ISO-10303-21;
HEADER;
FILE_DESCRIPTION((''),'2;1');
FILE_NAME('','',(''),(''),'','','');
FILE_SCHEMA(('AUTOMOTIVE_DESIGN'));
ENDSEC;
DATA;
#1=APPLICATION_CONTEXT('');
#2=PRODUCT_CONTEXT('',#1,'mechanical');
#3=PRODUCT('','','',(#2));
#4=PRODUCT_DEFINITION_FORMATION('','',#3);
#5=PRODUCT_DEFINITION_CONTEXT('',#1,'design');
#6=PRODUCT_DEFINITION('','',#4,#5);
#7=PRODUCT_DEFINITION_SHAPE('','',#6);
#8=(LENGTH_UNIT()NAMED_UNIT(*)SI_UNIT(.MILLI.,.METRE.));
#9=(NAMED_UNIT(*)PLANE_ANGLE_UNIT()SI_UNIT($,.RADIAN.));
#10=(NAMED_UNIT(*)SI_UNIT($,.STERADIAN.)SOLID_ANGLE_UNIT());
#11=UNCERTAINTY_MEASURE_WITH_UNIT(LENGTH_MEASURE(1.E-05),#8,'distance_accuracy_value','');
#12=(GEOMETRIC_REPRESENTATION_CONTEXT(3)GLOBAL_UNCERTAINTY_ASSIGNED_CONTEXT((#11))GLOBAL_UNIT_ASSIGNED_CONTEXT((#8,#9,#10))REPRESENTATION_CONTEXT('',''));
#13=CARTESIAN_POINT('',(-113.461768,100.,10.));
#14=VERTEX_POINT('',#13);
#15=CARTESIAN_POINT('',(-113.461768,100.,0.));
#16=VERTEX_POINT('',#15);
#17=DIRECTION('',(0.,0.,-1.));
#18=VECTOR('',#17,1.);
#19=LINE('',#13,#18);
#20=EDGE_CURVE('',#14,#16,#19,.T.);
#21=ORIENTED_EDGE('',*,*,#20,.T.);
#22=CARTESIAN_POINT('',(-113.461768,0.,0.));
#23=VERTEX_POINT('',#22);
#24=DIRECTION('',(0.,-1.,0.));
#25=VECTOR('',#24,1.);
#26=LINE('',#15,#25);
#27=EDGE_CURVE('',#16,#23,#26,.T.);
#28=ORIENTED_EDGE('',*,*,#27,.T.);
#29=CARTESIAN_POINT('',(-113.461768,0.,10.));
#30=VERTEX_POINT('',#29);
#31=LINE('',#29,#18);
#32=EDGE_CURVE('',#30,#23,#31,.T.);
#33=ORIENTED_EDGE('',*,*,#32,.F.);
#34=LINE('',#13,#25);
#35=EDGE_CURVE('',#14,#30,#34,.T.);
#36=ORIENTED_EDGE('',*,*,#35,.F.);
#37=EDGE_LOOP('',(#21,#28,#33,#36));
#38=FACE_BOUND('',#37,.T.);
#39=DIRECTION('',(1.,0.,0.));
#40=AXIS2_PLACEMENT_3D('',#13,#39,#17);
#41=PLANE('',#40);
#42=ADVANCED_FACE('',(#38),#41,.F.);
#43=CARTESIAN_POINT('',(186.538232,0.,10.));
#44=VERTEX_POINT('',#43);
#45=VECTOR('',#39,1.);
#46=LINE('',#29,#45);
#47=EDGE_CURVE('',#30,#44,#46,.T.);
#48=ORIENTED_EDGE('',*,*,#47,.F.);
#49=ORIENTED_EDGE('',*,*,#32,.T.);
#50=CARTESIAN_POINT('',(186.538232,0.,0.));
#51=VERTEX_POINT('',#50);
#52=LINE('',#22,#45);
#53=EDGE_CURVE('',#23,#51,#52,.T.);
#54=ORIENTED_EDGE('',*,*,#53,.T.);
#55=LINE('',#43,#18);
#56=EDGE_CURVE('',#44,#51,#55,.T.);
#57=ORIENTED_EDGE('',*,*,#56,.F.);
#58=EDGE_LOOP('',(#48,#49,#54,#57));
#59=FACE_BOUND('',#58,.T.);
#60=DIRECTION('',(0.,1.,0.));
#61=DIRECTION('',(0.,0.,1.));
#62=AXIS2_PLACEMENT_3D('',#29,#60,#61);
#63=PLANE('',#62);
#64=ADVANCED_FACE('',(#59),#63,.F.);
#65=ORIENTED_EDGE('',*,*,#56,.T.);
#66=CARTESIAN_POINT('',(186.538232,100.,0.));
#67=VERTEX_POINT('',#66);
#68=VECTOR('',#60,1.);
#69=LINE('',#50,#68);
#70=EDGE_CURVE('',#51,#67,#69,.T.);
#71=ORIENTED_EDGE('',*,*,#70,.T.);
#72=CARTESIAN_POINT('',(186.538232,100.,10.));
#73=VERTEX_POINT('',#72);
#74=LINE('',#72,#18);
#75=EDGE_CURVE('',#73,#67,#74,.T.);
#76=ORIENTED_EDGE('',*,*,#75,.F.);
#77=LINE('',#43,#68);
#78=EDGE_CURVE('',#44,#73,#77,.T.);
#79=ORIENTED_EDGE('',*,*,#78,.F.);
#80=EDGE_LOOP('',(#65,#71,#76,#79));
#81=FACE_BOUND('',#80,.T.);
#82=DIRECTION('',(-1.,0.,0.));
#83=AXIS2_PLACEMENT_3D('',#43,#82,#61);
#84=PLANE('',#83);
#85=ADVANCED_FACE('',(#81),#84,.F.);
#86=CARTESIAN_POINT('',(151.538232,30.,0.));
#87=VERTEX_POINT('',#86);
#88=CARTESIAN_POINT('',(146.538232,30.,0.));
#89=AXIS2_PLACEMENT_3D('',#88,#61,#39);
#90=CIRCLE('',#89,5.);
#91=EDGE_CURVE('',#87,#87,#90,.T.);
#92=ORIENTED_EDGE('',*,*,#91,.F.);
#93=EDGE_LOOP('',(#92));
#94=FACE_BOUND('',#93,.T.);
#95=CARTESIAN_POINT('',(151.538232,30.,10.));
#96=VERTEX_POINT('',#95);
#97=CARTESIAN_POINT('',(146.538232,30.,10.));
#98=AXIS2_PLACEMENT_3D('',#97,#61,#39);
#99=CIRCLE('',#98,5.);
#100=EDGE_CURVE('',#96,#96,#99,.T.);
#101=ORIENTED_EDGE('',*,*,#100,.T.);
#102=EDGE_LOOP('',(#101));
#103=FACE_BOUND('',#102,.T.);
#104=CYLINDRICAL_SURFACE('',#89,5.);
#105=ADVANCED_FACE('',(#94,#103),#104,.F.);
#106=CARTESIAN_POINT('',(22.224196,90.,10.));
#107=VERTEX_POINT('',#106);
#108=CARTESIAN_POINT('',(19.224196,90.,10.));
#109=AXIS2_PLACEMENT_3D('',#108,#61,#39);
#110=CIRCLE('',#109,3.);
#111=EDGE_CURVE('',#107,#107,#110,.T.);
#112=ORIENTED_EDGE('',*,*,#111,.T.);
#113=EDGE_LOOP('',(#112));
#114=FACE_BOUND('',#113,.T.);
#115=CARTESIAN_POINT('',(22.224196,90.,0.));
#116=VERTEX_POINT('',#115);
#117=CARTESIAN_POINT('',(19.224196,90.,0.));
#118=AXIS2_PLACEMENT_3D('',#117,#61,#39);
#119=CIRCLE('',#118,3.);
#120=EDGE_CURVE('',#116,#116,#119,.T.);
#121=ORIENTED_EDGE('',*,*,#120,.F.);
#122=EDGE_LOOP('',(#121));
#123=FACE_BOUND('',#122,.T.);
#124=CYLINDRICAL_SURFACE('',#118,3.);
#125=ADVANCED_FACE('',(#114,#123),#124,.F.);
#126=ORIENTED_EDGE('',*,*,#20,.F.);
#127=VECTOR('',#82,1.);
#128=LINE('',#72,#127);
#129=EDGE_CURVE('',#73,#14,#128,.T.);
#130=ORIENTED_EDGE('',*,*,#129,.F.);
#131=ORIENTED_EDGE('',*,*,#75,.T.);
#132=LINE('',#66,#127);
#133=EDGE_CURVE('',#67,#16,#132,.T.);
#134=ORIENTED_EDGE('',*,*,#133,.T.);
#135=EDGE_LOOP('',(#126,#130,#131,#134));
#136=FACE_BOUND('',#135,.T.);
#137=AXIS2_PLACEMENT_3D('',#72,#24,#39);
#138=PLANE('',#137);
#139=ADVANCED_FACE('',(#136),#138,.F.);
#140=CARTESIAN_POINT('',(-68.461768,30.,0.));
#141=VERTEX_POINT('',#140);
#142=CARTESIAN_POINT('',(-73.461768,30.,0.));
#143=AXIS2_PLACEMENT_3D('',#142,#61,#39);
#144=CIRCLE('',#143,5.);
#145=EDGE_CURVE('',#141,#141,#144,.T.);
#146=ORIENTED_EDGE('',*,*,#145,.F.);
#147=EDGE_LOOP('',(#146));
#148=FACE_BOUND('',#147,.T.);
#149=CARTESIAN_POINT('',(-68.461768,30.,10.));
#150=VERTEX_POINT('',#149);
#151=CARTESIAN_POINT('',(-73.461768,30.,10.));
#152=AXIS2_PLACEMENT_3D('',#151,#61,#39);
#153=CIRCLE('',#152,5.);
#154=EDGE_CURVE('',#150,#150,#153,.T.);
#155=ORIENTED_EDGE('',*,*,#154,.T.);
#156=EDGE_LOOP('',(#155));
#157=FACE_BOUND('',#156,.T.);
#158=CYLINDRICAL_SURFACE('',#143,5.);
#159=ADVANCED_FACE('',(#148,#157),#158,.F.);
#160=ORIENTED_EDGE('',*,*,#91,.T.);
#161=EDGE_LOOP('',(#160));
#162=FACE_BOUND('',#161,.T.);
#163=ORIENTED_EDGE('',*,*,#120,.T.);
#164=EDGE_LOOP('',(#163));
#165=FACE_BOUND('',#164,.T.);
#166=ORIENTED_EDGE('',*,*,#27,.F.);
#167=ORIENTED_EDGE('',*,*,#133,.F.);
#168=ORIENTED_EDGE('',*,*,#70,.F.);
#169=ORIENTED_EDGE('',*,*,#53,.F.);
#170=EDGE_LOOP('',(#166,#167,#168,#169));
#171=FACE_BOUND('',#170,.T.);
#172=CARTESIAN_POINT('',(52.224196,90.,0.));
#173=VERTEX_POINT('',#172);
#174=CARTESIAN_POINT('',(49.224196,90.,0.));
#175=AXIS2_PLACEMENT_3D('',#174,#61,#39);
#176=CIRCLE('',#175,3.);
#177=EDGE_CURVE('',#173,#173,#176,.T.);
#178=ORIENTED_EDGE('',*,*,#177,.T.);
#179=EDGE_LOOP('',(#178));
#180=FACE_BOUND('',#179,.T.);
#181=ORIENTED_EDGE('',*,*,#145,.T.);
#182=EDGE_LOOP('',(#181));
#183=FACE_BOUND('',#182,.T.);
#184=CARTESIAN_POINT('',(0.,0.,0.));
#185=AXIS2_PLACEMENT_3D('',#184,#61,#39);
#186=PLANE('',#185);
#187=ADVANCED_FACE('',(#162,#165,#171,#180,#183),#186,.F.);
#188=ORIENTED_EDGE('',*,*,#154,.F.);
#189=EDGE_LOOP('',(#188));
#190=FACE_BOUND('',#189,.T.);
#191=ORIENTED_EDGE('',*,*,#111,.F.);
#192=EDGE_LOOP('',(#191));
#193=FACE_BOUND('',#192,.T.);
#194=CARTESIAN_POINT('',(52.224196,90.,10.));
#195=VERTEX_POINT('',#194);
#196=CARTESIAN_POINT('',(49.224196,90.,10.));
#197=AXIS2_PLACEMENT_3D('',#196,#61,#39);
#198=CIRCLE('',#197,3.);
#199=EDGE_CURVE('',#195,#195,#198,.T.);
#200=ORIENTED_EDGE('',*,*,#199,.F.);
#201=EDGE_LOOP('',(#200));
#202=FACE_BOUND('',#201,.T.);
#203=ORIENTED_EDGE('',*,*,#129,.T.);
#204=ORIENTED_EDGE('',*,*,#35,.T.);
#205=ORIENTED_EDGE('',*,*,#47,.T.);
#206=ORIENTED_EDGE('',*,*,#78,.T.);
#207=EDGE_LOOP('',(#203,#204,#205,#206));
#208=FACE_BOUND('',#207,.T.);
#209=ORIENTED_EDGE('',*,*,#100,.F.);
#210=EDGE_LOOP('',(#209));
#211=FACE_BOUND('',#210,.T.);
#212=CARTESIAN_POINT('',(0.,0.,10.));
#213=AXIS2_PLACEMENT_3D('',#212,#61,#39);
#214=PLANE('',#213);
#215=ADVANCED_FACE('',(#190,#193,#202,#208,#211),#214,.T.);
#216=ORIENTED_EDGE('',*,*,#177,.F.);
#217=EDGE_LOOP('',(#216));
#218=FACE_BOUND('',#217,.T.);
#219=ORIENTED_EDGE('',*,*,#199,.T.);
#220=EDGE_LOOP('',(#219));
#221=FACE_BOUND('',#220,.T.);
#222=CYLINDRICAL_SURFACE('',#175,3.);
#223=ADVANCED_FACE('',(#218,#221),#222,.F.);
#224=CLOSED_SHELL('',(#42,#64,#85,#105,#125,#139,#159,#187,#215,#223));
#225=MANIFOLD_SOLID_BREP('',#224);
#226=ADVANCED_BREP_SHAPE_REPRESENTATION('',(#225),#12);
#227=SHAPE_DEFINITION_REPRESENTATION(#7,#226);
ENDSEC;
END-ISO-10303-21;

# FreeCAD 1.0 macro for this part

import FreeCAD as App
import Part
import Sketcher
Q = App.Units.Quantity


def add_polygon(sketch, points):
    """Adds a closed chain of lines whose ends are joined by coincident constraints."""
    first, n = sketch.GeometryCount, len(points)
    for a, b in zip(points, points[1:] + points[:1]):
        sketch.addGeometry(Part.LineSegment(App.Vector(*a, 0), App.Vector(*b, 0)), False)
    for i in range(n):
        sketch.addConstraint(Sketcher.Constraint("Coincident", first + i, 2, first + (i + 1) % n, 1))

doc = App.newDocument("Part")
params = doc.addObject("Spreadsheet::Sheet", "Params")
for row, (alias, value) in enumerate([
    ("sketch1_width", "300 mm"),
    ("sketch1_height", "100 mm"),
    ("pad1_length", "10 mm"),
    ("sketch2_diameter", "6 mm"),
    ("sketch3_diameter", "10 mm"),
], start=1):
    params.set(f"A{row}", alias)
    params.set(f"B{row}", "=" + value)
    params.setAlias(f"B{row}", alias)

body = doc.addObject("PartDesign::Body", "Body")

# Sketch on XY plane
sketch1 = doc.addObject("Sketcher::SketchObject", "Sketch")
body.addObject(sketch1)
sketch1.AttachmentSupport = (doc.XY_Plane, [""])
sketch1.MapMode = "FlatFace"
add_polygon(sketch1, [(-113, 100), (-113, 0), (187, 0), (187, 100)])  # lines 0-3
sketch1.addConstraint(Sketcher.Constraint("Vertical", 0))
sketch1.addConstraint(Sketcher.Constraint("Horizontal", 1))
sketch1.addConstraint(Sketcher.Constraint("Vertical", 2))
sketch1.addConstraint(Sketcher.Constraint("Horizontal", 3))
sketch1.addConstraint(Sketcher.Constraint("PointOnObject", 0, 2, -1))
sketch1.addConstraint(Sketcher.Constraint("DistanceX", 1, 1, 1, 2, Q("300 mm")))
sketch1.addConstraint(Sketcher.Constraint("DistanceY", 0, 2, 0, 1, Q("100 mm")))
sketch1.addConstraint(Sketcher.Constraint("DistanceX", 0, 2, -1, 1, Q("113.461768 mm")))
sketch1.setExpression("Constraints[9]", "Params.sketch1_width")
sketch1.setExpression("Constraints[10]", "Params.sketch1_height")
pad1 = doc.addObject("PartDesign::Pad", "Pad")
body.addObject(pad1)
pad1.Profile = sketch1
pad1.setExpression("Length", "Params.pad1_length")

# Sketch on XY plane
sketch2 = doc.addObject("Sketcher::SketchObject", "Sketch001")
body.addObject(sketch2)
sketch2.AttachmentSupport = (doc.XY_Plane, [""])
sketch2.MapMode = "FlatFace"
sketch2.AttachmentOffset = App.Placement(App.Vector(0, 0, 10), App.Rotation())
sketch2.addGeometry(Part.Circle(App.Vector(49.2, 90, 0), App.Vector(0, 0, 1), 3), False)
sketch2.addGeometry(Part.Circle(App.Vector(19.2, 90, 0), App.Vector(0, 0, 1), 3), False)
sketch2.addConstraint(Sketcher.Constraint("Equal", 0, 1))
sketch2.addConstraint(Sketcher.Constraint("Horizontal", 0, 3, 1, 3))
sketch2.addConstraint(Sketcher.Constraint("Diameter", 0, Q("6 mm")))
sketch2.addConstraint(Sketcher.Constraint("DistanceY", -1, 1, 0, 3, Q("90 mm")))
sketch2.addConstraint(Sketcher.Constraint("DistanceX", 1, 3, 0, 3, Q("30 mm")))
sketch2.addConstraint(Sketcher.Constraint("DistanceX", -1, 1, 0, 3, Q("49.224196 mm")))
sketch2.setExpression("Constraints[2]", "Params.sketch2_diameter")
pocket1 = doc.addObject("PartDesign::Pocket", "Pocket")
body.addObject(pocket1)
pocket1.Profile = sketch2
pocket1.Type = "ThroughAll"

# Sketch on XY plane
sketch3 = doc.addObject("Sketcher::SketchObject", "Sketch002")
body.addObject(sketch3)
sketch3.AttachmentSupport = (doc.XY_Plane, [""])
sketch3.MapMode = "FlatFace"
sketch3.AttachmentOffset = App.Placement(App.Vector(0, 0, 10), App.Rotation())
sketch3.addGeometry(Part.Circle(App.Vector(-73, 30, 0), App.Vector(0, 0, 1), 5), False)
sketch3.addGeometry(Part.Circle(App.Vector(147, 30, 0), App.Vector(0, 0, 1), 5), False)
sketch3.addConstraint(Sketcher.Constraint("Equal", 0, 1))
sketch3.addConstraint(Sketcher.Constraint("Horizontal", 0, 3, 1, 3))
sketch3.addConstraint(Sketcher.Constraint("Diameter", 0, Q("10 mm")))
sketch3.addConstraint(Sketcher.Constraint("DistanceY", -1, 1, 0, 3, Q("30 mm")))
sketch3.addConstraint(Sketcher.Constraint("DistanceX", 0, 3, 1, 3, Q("220 mm")))
sketch3.addConstraint(Sketcher.Constraint("DistanceX", 0, 3, -1, 1, Q("73.461768 mm")))
sketch3.setExpression("Constraints[2]", "Params.sketch3_diameter")
pocket2 = doc.addObject("PartDesign::Pocket", "Pocket001")
body.addObject(pocket2)
pocket2.Profile = sketch3
pocket2.Type = "ThroughAll"

doc.recompute()
